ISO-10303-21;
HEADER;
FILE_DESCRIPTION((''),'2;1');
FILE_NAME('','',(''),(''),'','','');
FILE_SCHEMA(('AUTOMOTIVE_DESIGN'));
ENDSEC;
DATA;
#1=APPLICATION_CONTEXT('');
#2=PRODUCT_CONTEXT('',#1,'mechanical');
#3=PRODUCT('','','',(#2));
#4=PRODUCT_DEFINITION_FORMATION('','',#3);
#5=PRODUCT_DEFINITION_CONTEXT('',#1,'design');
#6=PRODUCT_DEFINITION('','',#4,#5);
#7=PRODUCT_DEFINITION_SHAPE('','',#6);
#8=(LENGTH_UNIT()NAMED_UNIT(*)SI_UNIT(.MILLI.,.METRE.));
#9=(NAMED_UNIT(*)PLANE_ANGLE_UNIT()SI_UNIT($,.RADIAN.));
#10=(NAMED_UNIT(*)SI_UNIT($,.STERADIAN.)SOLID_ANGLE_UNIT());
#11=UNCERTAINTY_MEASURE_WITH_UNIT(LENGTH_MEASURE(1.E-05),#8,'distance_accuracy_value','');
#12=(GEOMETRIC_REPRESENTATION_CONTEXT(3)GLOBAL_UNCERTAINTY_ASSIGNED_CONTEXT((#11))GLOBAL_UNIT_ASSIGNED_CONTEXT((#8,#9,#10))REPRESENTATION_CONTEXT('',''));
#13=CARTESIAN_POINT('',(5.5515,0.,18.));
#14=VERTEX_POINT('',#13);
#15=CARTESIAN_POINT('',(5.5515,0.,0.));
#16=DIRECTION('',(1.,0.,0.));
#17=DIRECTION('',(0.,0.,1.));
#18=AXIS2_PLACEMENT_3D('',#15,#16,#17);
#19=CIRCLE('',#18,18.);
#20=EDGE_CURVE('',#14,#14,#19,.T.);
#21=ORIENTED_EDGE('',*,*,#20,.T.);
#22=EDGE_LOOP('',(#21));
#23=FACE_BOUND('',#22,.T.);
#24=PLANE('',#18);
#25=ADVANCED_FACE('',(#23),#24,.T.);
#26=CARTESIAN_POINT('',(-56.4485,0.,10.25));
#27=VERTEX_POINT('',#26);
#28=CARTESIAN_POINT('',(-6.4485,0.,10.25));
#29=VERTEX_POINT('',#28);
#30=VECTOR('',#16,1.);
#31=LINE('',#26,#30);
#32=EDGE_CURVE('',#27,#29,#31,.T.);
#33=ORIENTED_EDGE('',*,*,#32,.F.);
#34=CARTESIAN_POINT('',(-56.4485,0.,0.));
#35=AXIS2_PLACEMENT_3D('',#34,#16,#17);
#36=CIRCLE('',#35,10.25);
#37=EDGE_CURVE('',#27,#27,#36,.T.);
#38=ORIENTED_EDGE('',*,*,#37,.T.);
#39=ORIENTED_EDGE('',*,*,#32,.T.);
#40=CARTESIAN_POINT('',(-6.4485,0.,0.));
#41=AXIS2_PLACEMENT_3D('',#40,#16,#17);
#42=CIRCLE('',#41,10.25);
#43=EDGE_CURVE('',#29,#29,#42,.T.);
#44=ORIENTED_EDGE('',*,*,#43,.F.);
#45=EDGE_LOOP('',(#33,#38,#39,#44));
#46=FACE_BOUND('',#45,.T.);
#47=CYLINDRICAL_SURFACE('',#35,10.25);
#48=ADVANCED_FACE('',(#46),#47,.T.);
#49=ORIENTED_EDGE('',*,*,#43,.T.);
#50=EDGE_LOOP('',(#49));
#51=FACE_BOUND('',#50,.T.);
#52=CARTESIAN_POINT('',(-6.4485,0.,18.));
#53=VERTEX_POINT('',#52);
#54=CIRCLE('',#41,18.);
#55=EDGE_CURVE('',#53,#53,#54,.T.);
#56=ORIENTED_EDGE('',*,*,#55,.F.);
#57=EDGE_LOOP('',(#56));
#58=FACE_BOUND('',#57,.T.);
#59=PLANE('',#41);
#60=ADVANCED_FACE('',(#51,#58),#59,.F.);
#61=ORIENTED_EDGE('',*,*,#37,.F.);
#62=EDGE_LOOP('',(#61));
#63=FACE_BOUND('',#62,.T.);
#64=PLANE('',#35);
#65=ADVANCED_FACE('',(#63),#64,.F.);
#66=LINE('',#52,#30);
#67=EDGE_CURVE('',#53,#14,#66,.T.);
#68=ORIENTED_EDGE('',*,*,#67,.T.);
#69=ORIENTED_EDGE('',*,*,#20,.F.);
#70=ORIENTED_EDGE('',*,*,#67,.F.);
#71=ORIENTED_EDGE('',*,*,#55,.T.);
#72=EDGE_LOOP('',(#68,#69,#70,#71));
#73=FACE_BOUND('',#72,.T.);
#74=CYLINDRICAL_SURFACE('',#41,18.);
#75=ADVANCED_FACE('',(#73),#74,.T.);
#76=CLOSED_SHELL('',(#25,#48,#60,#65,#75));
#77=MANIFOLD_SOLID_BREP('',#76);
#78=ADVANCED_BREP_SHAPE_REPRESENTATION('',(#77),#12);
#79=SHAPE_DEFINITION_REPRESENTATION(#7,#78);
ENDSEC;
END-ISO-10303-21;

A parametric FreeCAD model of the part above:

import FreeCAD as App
import Part
import Sketcher
Q = App.Units.Quantity


def add_polygon(sketch, points):
    """Adds a closed chain of lines whose ends are joined by coincident constraints."""
    first, n = sketch.GeometryCount, len(points)
    for a, b in zip(points, points[1:] + points[:1]):
        sketch.addGeometry(Part.LineSegment(App.Vector(*a, 0), App.Vector(*b, 0)), False)
    for i in range(n):
        sketch.addConstraint(Sketcher.Constraint("Coincident", first + i, 2, first + (i + 1) % n, 1))

doc = App.newDocument("Part")
body = doc.addObject("PartDesign::Body", "Body")

sketch1 = doc.addObject("Sketcher::SketchObject", "Sketch")
body.addObject(sketch1)
sketch1.AttachmentSupport = (doc.XZ_Plane, [""])
sketch1.MapMode = "FlatFace"
add_polygon(sketch1, [(-56.4485, 10.25), (-56.4485, 0), (5.5515, 0), (5.5515, 18), (-6.4485, 18), (-6.4485, 10.25)])
sketch1.addConstraint(Sketcher.Constraint("Vertical", 0))
sketch1.addConstraint(Sketcher.Constraint("Horizontal", 1))
sketch1.addConstraint(Sketcher.Constraint("Vertical", 2))
sketch1.addConstraint(Sketcher.Constraint("Horizontal", 3))
sketch1.addConstraint(Sketcher.Constraint("Vertical", 4))
sketch1.addConstraint(Sketcher.Constraint("Horizontal", 5))
sketch1.addConstraint(Sketcher.Constraint("PointOnObject", 0, 2, -1))
sketch1.addConstraint(Sketcher.Constraint("DistanceX", 1, 1, 1, 2, Q("62 mm")))
sketch1.addConstraint(Sketcher.Constraint("DistanceX", 3, 2, 3, 1, Q("12 mm")))
sketch1.addConstraint(Sketcher.Constraint("DistanceY", 2, 1, 2, 2, Q("18 mm")))
sketch1.addConstraint(Sketcher.Constraint("DistanceY", 0, 2, 0, 1, Q("10.25 mm")))
sketch1.addConstraint(Sketcher.Constraint("DistanceX", 0, 2, -1, 1, Q("56.4485 mm")))
revolution = doc.addObject("PartDesign::Revolution", "Revolution")
body.addObject(revolution)
revolution.Profile = sketch1
revolution.ReferenceAxis = (sketch1, ["H_Axis"])
revolution.Angle = 360

doc.recompute()
